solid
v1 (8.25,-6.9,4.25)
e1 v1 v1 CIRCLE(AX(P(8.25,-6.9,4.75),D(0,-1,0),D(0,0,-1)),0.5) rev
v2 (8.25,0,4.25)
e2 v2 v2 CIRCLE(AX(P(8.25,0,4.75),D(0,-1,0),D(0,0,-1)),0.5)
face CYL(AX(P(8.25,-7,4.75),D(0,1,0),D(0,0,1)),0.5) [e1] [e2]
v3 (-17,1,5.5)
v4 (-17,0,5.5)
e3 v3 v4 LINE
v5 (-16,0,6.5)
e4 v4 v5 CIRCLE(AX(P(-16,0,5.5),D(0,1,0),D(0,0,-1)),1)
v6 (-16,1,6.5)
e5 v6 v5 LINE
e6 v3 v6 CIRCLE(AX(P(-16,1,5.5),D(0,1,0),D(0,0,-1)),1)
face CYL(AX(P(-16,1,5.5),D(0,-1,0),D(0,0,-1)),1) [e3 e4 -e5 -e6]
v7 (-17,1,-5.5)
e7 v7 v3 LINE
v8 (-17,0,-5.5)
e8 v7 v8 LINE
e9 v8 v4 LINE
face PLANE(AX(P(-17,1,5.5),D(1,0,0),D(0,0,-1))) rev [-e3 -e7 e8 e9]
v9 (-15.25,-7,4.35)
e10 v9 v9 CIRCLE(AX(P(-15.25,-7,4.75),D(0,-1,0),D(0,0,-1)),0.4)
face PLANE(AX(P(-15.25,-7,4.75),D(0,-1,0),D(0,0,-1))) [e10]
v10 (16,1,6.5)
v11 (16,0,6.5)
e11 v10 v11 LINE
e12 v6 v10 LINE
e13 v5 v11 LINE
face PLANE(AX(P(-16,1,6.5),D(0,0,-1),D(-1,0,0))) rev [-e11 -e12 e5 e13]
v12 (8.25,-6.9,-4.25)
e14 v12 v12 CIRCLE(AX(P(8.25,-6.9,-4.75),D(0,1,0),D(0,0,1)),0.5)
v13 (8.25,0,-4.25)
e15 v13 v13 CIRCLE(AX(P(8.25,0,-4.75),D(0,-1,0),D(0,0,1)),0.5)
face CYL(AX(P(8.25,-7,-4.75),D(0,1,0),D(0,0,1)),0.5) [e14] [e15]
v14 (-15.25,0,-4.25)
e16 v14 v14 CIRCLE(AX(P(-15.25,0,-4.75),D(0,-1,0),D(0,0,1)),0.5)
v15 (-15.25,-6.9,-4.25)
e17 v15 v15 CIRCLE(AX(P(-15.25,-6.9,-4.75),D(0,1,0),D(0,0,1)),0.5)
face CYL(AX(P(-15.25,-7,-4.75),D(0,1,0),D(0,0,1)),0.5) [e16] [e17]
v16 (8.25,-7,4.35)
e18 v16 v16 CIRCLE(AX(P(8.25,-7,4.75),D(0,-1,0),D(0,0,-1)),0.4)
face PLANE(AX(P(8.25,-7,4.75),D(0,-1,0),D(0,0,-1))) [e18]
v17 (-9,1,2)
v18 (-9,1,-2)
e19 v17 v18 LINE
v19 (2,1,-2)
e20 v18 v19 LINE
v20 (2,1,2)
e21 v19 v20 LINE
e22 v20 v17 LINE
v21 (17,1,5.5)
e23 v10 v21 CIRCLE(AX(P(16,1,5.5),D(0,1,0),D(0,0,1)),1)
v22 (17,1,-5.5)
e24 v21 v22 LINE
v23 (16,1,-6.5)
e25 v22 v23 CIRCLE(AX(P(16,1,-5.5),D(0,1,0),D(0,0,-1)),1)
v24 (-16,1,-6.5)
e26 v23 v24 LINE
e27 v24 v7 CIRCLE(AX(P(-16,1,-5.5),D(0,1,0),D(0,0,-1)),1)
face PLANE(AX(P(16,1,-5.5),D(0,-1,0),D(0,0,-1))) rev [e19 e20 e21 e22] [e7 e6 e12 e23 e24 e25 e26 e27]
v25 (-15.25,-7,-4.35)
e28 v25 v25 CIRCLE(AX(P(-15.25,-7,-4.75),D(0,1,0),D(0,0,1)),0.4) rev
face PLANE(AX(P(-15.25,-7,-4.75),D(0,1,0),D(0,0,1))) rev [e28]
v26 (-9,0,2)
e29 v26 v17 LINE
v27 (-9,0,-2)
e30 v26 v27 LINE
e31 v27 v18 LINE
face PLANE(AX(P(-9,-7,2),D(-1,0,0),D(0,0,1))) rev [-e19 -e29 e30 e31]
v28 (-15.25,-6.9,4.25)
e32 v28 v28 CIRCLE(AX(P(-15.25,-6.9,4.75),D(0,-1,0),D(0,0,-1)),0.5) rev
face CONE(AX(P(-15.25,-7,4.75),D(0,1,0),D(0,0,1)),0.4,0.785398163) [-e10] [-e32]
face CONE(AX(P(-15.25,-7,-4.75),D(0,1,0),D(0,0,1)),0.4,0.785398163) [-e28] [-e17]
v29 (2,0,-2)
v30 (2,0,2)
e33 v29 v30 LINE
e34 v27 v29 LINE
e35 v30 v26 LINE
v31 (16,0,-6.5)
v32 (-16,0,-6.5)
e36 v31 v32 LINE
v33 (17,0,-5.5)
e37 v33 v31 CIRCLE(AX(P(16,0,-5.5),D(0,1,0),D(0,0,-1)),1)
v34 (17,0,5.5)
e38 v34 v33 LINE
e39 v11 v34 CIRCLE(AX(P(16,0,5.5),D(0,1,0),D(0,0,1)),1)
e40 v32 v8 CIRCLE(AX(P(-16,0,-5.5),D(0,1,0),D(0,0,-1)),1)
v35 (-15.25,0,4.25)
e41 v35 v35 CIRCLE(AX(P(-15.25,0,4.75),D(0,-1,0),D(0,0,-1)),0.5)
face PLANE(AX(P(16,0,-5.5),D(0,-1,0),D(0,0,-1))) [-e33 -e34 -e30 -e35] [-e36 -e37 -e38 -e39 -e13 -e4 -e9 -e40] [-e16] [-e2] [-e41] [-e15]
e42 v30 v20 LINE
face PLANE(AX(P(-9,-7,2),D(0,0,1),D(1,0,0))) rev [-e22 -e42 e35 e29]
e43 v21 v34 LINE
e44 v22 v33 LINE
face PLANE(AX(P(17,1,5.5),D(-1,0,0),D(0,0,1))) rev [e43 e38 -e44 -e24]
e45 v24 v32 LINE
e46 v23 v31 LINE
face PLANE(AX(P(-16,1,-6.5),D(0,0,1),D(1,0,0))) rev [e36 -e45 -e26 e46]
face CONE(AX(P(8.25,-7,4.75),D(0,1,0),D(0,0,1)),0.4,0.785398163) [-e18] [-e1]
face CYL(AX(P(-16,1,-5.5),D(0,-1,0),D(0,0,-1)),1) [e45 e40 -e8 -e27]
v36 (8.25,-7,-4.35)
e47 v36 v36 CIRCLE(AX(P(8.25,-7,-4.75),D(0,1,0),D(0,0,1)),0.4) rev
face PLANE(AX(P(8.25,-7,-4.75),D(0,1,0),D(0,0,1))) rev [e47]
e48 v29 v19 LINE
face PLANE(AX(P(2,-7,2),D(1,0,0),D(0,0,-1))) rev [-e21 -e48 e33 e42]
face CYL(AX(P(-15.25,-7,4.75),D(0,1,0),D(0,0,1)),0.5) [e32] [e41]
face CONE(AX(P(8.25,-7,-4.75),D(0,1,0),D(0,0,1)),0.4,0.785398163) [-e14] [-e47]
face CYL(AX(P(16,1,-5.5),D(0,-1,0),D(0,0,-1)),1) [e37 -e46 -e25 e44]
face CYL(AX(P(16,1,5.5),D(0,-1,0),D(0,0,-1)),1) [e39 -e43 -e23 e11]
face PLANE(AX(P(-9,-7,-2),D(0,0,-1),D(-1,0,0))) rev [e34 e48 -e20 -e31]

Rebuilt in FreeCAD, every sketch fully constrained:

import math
import FreeCAD as App
import Part
import Sketcher

V = App.Vector


def edges_at(feature, points):
    """Names of the edges that pass closest to the given points."""
    edges = feature.Shape.Edges
    near = lambda p: min(range(len(edges)), key=lambda i: edges[i].distToShape(Part.Vertex(*p))[0])
    return sorted({f"Edge{near(p) + 1}" for p in points})


def add_polygon(sketch, points):
    """Adds a closed chain of lines whose ends are joined by coincident constraints."""
    first, n = sketch.GeometryCount, len(points)
    for a, b in zip(points, points[1:] + points[:1]):
        sketch.addGeometry(Part.LineSegment(App.Vector(*a, 0), App.Vector(*b, 0)), False)
    for i in range(n):
        sketch.addConstraint(Sketcher.Constraint("Coincident", first + i, 2, first + (i + 1) % n, 1))

doc = App.newDocument("Part")
body = doc.addObject("PartDesign::Body", "Body")

# Sketch on XZ plane
sketch1 = doc.addObject("Sketcher::SketchObject", "Sketch")
body.addObject(sketch1)
sketch1.AttachmentSupport = (doc.XZ_Plane, [""])
sketch1.MapMode = "FlatFace"
sketch1.addGeometry([
    Part.LineSegment(V(-16, 6.5, 0), V(16, 6.5, 0)),  # 0
    Part.ArcOfCircle(Part.Circle(V(16, 5.5, 0), V(0, 0, 1), 1), math.radians(0), math.radians(90)),  # 1
    Part.LineSegment(V(17, 5.5, 0), V(17, -5.5, 0)),  # 2
    Part.ArcOfCircle(Part.Circle(V(16, -5.5, 0), V(0, 0, 1), 1), math.radians(-90), math.radians(0)),  # 3
    Part.LineSegment(V(16, -6.5, 0), V(-16, -6.5, 0)),  # 4
    Part.ArcOfCircle(Part.Circle(V(-16, -5.5, 0), V(0, 0, 1), 1), math.radians(-180), math.radians(-90)),  # 5
    Part.LineSegment(V(-17, -5.5, 0), V(-17, 5.5, 0)),  # 6
    Part.ArcOfCircle(Part.Circle(V(-16, 5.5, 0), V(0, 0, 1), 1), math.radians(90), math.radians(180)),  # 7
], False)
sketch1.addConstraint([
    Sketcher.Constraint("Tangent", 0, 2, 1, 2),
    Sketcher.Constraint("Tangent", 1, 1, 2, 1),
    Sketcher.Constraint("Tangent", 2, 2, 3, 2),
    Sketcher.Constraint("Tangent", 3, 1, 4, 1),
    Sketcher.Constraint("Tangent", 4, 2, 5, 2),
    Sketcher.Constraint("Tangent", 5, 1, 6, 1),
    Sketcher.Constraint("Tangent", 6, 2, 7, 2),
    Sketcher.Constraint("Tangent", 7, 1, 0, 1),
    Sketcher.Constraint("Horizontal", 0),
    Sketcher.Constraint("Vertical", 2),
    Sketcher.Constraint("Horizontal", 4),
    Sketcher.Constraint("Vertical", 6),
    Sketcher.Constraint("Equal", 1, 3),
    Sketcher.Constraint("Equal", 3, 5),
    Sketcher.Constraint("Equal", 5, 7),
    Sketcher.Constraint("Symmetric", 1, 3, 5, 3, -1, 1),
    Sketcher.Constraint("Radius", 1, 1.0),
    Sketcher.Constraint("DistanceX", 0, 1, 0, 2, 32.0),
    Sketcher.Constraint("DistanceY", 2, 2, 2, 1, 11.0),
])
pad1 = doc.addObject("PartDesign::Pad", "Pad")
body.addObject(pad1)
pad1.Profile = sketch1
pad1.Length = 1
pad1.Reversed = True

# Sketch on XZ plane
sketch2 = doc.addObject("Sketcher::SketchObject", "Sketch001")
body.addObject(sketch2)
sketch2.AttachmentSupport = (doc.XZ_Plane, [""])
sketch2.MapMode = "FlatFace"
sketch2.addGeometry([
    Part.Circle(V(-15.25, 4.75, 0), V(0, 0, 1), 0.5),
    Part.Circle(V(-15.25, -4.75, 0), V(0, 0, 1), 0.5),
    Part.Circle(V(8.25, -4.75, 0), V(0, 0, 1), 0.5),
    Part.Circle(V(8.25, 4.75, 0), V(0, 0, 1), 0.5),
], False)
sketch2.addConstraint([
    Sketcher.Constraint("Equal", 0, 1),
    Sketcher.Constraint("Equal", 1, 2),
    Sketcher.Constraint("Equal", 2, 3),
    Sketcher.Constraint("Symmetric", 0, 3, 1, 3, -1),
    Sketcher.Constraint("Symmetric", 2, 3, 3, 3, -1),
    Sketcher.Constraint("Horizontal", 1, 3, 2, 3),
    Sketcher.Constraint("Diameter", 0, 1.0),
    Sketcher.Constraint("DistanceY", 1, 3, 0, 3, 9.5),
    Sketcher.Constraint("DistanceX", 1, 3, 2, 3, 23.5),
    Sketcher.Constraint("DistanceX", 0, 3, -1, 1, 15.25),
])
pad2 = doc.addObject("PartDesign::Pad", "Pad001")
body.addObject(pad2)
pad2.Profile = sketch2
pad2.Length = 7

# Sketch on XZ plane
sketch3 = doc.addObject("Sketcher::SketchObject", "Sketch002")
body.addObject(sketch3)
sketch3.AttachmentSupport = (doc.XZ_Plane, [""])
sketch3.MapMode = "FlatFace"
sketch3.AttachmentOffset = App.Placement(V(0, 0, -1), App.Rotation())
add_polygon(sketch3, [(-9, -2), (-9, 2), (2, 2), (2, -2)])  # lines 0-3
sketch3.addConstraint([
    Sketcher.Constraint("Vertical", 0),
    Sketcher.Constraint("Horizontal", 1),
    Sketcher.Constraint("Vertical", 2),
    Sketcher.Constraint("Horizontal", 3),
    Sketcher.Constraint("DistanceX", 1, 1, 1, 2, 11.0),
    Sketcher.Constraint("DistanceY", 0, 1, 0, 2, 4.0),
    Sketcher.Constraint("DistanceX", 0, 2, -1, 1, 9.0),
    Sketcher.Constraint("DistanceY", -1, 1, 0, 2, 2.0),
])
pocket1 = doc.addObject("PartDesign::Pocket", "Pocket")
body.addObject(pocket1)
pocket1.Profile = sketch3
pocket1.Type = "ThroughAll"
pocket1.Midplane = True
doc.recompute()

chamfer = doc.addObject("PartDesign::Chamfer", "Chamfer")
body.addObject(chamfer)
chamfer.Base = (pocket1, edges_at(pocket1, [
    (-15.75, -7, 4.75),
    (7.75, -7, 4.75),
    (7.75, -7, -4.75),
    (-15.75, -7, -4.75),
]))
chamfer.Size = 0.1

doc.recompute()
